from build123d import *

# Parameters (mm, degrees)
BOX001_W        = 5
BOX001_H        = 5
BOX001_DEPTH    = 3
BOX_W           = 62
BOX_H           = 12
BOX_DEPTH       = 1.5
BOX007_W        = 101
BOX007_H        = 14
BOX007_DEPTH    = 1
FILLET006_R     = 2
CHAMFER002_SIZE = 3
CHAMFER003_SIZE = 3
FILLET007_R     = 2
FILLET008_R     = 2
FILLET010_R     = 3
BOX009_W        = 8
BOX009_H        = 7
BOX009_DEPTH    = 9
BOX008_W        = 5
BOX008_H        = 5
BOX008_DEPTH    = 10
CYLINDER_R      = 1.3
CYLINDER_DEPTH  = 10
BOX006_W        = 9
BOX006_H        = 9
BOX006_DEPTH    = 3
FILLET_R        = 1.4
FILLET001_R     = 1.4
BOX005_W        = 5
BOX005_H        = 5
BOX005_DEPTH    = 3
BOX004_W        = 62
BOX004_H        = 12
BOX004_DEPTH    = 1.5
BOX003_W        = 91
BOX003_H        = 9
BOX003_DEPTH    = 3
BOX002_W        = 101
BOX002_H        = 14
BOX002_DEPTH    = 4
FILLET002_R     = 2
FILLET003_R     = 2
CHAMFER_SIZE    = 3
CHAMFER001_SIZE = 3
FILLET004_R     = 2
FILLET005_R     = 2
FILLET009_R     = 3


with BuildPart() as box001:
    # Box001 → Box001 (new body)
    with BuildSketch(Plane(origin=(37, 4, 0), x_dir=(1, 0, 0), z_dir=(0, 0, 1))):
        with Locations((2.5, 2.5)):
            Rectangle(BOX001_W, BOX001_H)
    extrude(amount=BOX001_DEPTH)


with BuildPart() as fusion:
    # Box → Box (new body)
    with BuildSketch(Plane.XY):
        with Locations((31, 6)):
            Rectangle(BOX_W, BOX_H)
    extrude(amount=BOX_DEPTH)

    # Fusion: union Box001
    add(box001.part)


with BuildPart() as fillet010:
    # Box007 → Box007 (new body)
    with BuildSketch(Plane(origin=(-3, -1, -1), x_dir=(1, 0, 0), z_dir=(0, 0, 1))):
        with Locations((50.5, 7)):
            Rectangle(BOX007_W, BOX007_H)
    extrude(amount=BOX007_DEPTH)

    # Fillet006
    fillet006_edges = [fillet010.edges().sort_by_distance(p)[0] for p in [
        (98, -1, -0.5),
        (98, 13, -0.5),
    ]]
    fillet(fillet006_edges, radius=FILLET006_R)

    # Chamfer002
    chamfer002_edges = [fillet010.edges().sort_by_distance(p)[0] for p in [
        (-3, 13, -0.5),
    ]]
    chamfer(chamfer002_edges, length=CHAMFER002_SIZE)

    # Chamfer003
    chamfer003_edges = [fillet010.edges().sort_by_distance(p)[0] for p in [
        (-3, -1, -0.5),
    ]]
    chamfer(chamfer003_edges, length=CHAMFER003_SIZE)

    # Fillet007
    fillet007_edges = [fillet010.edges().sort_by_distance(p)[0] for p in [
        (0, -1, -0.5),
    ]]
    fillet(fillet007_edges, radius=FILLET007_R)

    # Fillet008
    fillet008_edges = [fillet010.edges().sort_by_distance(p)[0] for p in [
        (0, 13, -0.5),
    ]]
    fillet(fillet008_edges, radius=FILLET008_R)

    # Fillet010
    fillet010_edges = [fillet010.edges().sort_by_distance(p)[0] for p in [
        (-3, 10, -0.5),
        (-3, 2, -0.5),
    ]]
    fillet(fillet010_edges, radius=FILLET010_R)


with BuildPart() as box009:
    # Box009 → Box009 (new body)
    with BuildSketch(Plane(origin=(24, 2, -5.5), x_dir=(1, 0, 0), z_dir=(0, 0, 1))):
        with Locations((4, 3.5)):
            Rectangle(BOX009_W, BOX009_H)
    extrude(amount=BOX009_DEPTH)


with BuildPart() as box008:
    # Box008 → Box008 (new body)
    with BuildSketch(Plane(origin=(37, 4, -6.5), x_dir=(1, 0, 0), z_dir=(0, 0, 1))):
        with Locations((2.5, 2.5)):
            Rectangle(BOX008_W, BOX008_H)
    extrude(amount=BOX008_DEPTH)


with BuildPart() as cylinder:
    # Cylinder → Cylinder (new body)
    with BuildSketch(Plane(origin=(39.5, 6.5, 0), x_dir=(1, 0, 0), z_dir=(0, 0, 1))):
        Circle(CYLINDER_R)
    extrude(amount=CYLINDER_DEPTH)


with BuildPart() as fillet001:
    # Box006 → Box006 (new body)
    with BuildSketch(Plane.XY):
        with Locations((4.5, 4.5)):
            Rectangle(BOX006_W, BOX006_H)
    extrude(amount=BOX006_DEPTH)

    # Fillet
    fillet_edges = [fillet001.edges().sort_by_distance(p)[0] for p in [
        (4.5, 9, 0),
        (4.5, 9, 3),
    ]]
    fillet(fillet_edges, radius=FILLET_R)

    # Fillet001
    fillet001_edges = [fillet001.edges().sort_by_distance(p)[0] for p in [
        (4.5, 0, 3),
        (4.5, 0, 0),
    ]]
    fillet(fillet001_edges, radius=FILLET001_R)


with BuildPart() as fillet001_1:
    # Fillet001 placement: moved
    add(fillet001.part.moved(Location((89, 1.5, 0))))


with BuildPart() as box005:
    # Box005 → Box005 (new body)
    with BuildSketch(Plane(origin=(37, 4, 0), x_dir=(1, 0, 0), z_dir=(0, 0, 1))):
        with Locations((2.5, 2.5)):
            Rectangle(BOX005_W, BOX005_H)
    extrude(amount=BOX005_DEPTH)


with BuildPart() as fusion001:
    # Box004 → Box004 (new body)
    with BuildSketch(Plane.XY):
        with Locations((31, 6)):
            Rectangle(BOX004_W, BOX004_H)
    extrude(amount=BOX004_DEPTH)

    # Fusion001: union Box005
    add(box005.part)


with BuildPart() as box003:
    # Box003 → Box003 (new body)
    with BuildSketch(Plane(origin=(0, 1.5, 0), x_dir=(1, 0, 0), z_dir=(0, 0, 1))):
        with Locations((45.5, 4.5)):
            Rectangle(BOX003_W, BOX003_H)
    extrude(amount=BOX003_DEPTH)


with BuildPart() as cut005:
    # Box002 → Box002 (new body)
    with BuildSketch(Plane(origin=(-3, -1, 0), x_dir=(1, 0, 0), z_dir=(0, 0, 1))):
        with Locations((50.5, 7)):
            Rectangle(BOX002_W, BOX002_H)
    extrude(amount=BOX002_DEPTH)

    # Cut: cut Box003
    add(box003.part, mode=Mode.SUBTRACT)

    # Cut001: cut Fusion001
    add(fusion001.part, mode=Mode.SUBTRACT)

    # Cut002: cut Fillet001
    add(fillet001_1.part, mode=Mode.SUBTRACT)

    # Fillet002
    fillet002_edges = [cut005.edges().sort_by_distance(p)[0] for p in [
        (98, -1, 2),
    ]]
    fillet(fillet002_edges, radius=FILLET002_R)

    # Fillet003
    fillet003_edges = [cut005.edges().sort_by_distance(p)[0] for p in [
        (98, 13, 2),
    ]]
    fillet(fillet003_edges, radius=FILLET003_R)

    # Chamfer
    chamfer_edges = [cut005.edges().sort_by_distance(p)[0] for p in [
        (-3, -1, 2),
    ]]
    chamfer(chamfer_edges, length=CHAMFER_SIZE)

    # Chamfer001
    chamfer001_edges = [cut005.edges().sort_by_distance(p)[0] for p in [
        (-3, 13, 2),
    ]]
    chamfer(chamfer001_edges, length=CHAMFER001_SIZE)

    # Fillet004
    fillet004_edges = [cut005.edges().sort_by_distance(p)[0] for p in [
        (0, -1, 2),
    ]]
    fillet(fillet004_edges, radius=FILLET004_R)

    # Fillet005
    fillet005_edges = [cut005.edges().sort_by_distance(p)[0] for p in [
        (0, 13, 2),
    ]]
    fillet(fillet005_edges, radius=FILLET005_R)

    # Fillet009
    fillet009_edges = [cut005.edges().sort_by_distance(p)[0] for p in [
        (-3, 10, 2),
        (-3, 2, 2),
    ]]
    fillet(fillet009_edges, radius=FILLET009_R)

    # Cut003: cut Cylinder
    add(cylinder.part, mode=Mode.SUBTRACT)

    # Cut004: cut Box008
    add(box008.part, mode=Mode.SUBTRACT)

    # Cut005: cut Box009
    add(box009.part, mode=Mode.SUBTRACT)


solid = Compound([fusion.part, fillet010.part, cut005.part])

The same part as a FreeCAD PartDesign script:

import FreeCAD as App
import Part
import Sketcher

V = App.Vector
Q = App.Units.Quantity


def edges_at(feature, points):
    """Names of the edges that pass closest to the given points."""
    edges = feature.Shape.Edges
    near = lambda p: min(range(len(edges)), key=lambda i: edges[i].distToShape(Part.Vertex(*p))[0])
    return sorted({f"Edge{near(p) + 1}" for p in points})


def add_polygon(sketch, points):
    """Adds a closed chain of lines whose ends are joined by coincident constraints."""
    first, n = sketch.GeometryCount, len(points)
    for a, b in zip(points, points[1:] + points[:1]):
        sketch.addGeometry(Part.LineSegment(App.Vector(*a, 0), App.Vector(*b, 0)), False)
    for i in range(n):
        sketch.addConstraint(Sketcher.Constraint("Coincident", first + i, 2, first + (i + 1) % n, 1))

doc = App.newDocument("Part")
body = doc.addObject("PartDesign::Body", "Body")

# Sketch on XY plane
sketch1 = body.newObject("Sketcher::SketchObject", "Sketch")
sketch1.AttachmentSupport = (doc.getObject("XY_Plane"), [""])
sketch1.MapMode = "FlatFace"
add_polygon(sketch1, [(37, 9), (37, 4), (42, 4), (42, 9)])  # lines 0-3
sketch1.addConstraint([
    Sketcher.Constraint("Vertical", 0),
    Sketcher.Constraint("Horizontal", 1),
    Sketcher.Constraint("Vertical", 2),
    Sketcher.Constraint("Horizontal", 3),
    Sketcher.Constraint("Equal", 3, 0),
    Sketcher.Constraint("DistanceX", 1, 1, 1, 2, Q("5 mm")),
    Sketcher.Constraint("DistanceX", -1, 1, 0, 2, Q("37 mm")),
    Sketcher.Constraint("DistanceY", -1, 1, 0, 2, Q("4 mm")),
])
pad1 = body.newObject("PartDesign::Pad", "Pad")
pad1.Profile = sketch1
pad1.Length = 3
body2 = doc.addObject("PartDesign::Body", "Body001")

# Sketch on XY plane
sketch2 = body2.newObject("Sketcher::SketchObject", "Sketch001")
sketch2.AttachmentSupport = (doc.getObject("XY_Plane001"), [""])
sketch2.MapMode = "FlatFace"
add_polygon(sketch2, [(0, 12), (0, 0), (62, 0), (62, 12)])  # lines 0-3
sketch2.addConstraint([
    Sketcher.Constraint("Vertical", 0),
    Sketcher.Constraint("Horizontal", 1),
    Sketcher.Constraint("Vertical", 2),
    Sketcher.Constraint("Horizontal", 3),
    Sketcher.Constraint("Coincident", 0, 2, -1, 1),
    Sketcher.Constraint("DistanceX", 1, 1, 1, 2, Q("62 mm")),
    Sketcher.Constraint("DistanceY", 0, 2, 0, 1, Q("12 mm")),
])
pad2 = body2.newObject("PartDesign::Pad", "Pad001")
pad2.Profile = sketch2
pad2.Length = 1.5
doc.recompute()

boolean = body2.newObject("PartDesign::Boolean", "Boolean")
boolean.Type = "Fuse"
boolean.addObjects([body])
body3 = doc.addObject("PartDesign::Body", "Body002")

# Sketch on XY plane
sketch3 = body3.newObject("Sketcher::SketchObject", "Sketch002")
sketch3.AttachmentSupport = (doc.getObject("XY_Plane002"), [""])
sketch3.MapMode = "FlatFace"
sketch3.AttachmentOffset = App.Placement(V(0, 0, -1), App.Rotation())
add_polygon(sketch3, [(-3, 13), (-3, -1), (98, -1), (98, 13)])  # lines 0-3
sketch3.addConstraint([
    Sketcher.Constraint("Vertical", 0),
    Sketcher.Constraint("Horizontal", 1),
    Sketcher.Constraint("Vertical", 2),
    Sketcher.Constraint("Horizontal", 3),
    Sketcher.Constraint("DistanceX", 1, 1, 1, 2, Q("101 mm")),
    Sketcher.Constraint("DistanceY", 0, 2, 0, 1, Q("14 mm")),
    Sketcher.Constraint("DistanceX", 0, 2, -1, 1, Q("3 mm")),
    Sketcher.Constraint("DistanceY", 0, 2, -1, 1, Q("1 mm")),
])
pad3 = body3.newObject("PartDesign::Pad", "Pad002")
pad3.Profile = sketch3
pad3.Length = 1
doc.recompute()

fillet = body3.newObject("PartDesign::Fillet", "Fillet")
fillet.Base = (pad3, edges_at(pad3, [(98, -1, -0.5), (98, 13, -0.5)]))
fillet.Radius = 2
doc.recompute()

chamfer = body3.newObject("PartDesign::Chamfer", "Chamfer")
chamfer.Base = (fillet, edges_at(fillet, [(-3, 13, -0.5)]))
chamfer.Size = 3
doc.recompute()

chamfer2 = body3.newObject("PartDesign::Chamfer", "Chamfer001")
chamfer2.Base = (chamfer, edges_at(chamfer, [(-3, -1, -0.5)]))
chamfer2.Size = 3
doc.recompute()

fillet2 = body3.newObject("PartDesign::Fillet", "Fillet001")
fillet2.Base = (chamfer2, edges_at(chamfer2, [(0, -1, -0.5)]))
fillet2.Radius = 2
doc.recompute()

fillet3 = body3.newObject("PartDesign::Fillet", "Fillet002")
fillet3.Base = (fillet2, edges_at(fillet2, [(0, 13, -0.5)]))
fillet3.Radius = 2
doc.recompute()

fillet4 = body3.newObject("PartDesign::Fillet", "Fillet003")
fillet4.Base = (fillet3, edges_at(fillet3, [(-3, 10, -0.5), (-3, 2, -0.5)]))
fillet4.Radius = 3
body4 = doc.addObject("PartDesign::Body", "Body003")

# Sketch on XY plane
sketch4 = body4.newObject("Sketcher::SketchObject", "Sketch003")
sketch4.AttachmentSupport = (doc.getObject("XY_Plane003"), [""])
sketch4.MapMode = "FlatFace"
sketch4.AttachmentOffset = App.Placement(V(0, 0, -5.5), App.Rotation())
add_polygon(sketch4, [(24, 9), (24, 2), (32, 2), (32, 9)])  # lines 0-3
sketch4.addConstraint([
    Sketcher.Constraint("Vertical", 0),
    Sketcher.Constraint("Horizontal", 1),
    Sketcher.Constraint("Vertical", 2),
    Sketcher.Constraint("Horizontal", 3),
    Sketcher.Constraint("DistanceX", 1, 1, 1, 2, Q("8 mm")),
    Sketcher.Constraint("DistanceY", 0, 2, 0, 1, Q("7 mm")),
    Sketcher.Constraint("DistanceX", -1, 1, 0, 2, Q("24 mm")),
    Sketcher.Constraint("DistanceY", -1, 1, 0, 2, Q("2 mm")),
])
pad4 = body4.newObject("PartDesign::Pad", "Pad003")
pad4.Profile = sketch4
pad4.Length = 9
body5 = doc.addObject("PartDesign::Body", "Body004")

# Sketch on XY plane
sketch5 = body5.newObject("Sketcher::SketchObject", "Sketch004")
sketch5.AttachmentSupport = (doc.getObject("XY_Plane004"), [""])
sketch5.MapMode = "FlatFace"
sketch5.AttachmentOffset = App.Placement(V(0, 0, -6.5), App.Rotation())
add_polygon(sketch5, [(37, 9), (37, 4), (42, 4), (42, 9)])  # lines 0-3
sketch5.addConstraint([
    Sketcher.Constraint("Vertical", 0),
    Sketcher.Constraint("Horizontal", 1),
    Sketcher.Constraint("Vertical", 2),
    Sketcher.Constraint("Horizontal", 3),
    Sketcher.Constraint("Equal", 3, 0),
    Sketcher.Constraint("DistanceX", 1, 1, 1, 2, Q("5 mm")),
    Sketcher.Constraint("DistanceX", -1, 1, 0, 2, Q("37 mm")),
    Sketcher.Constraint("DistanceY", -1, 1, 0, 2, Q("4 mm")),
])
pad5 = body5.newObject("PartDesign::Pad", "Pad004")
pad5.Profile = sketch5
pad5.Length = 10
body6 = doc.addObject("PartDesign::Body", "Body005")

# Sketch on XY plane
sketch6 = body6.newObject("Sketcher::SketchObject", "Sketch005")
sketch6.AttachmentSupport = (doc.getObject("XY_Plane005"), [""])
sketch6.MapMode = "FlatFace"
sketch6.addGeometry(Part.Circle(V(39.5, 6.5, 0), V(0, 0, 1), 1.3), False)
sketch6.addConstraint([
    Sketcher.Constraint("Diameter", 0, Q("2.6 mm")),
    Sketcher.Constraint("DistanceX", -1, 1, 0, 3, Q("39.5 mm")),
    Sketcher.Constraint("DistanceY", -1, 1, 0, 3, Q("6.5 mm")),
])
pad6 = body6.newObject("PartDesign::Pad", "Pad005")
pad6.Profile = sketch6
pad6.Length = 10
body7 = doc.addObject("PartDesign::Body", "Body006")

# Sketch on XY plane
sketch7 = body7.newObject("Sketcher::SketchObject", "Sketch006")
sketch7.AttachmentSupport = (doc.getObject("XY_Plane006"), [""])
sketch7.MapMode = "FlatFace"
add_polygon(sketch7, [(0, 9), (0, 0), (9, 0), (9, 9)])  # lines 0-3
sketch7.addConstraint([
    Sketcher.Constraint("Vertical", 0),
    Sketcher.Constraint("Horizontal", 1),
    Sketcher.Constraint("Vertical", 2),
    Sketcher.Constraint("Horizontal", 3),
    Sketcher.Constraint("Coincident", 0, 2, -1, 1),
    Sketcher.Constraint("Equal", 3, 0),
    Sketcher.Constraint("DistanceX", 1, 1, 1, 2, Q("9 mm")),
])
pad7 = body7.newObject("PartDesign::Pad", "Pad006")
pad7.Profile = sketch7
pad7.Length = 3
doc.recompute()

fillet5 = body7.newObject("PartDesign::Fillet", "Fillet004")
fillet5.Base = (pad7, edges_at(pad7, [(4.5, 9, 0), (4.5, 9, 3)]))
fillet5.Radius = 1.4
doc.recompute()

fillet6 = body7.newObject("PartDesign::Fillet", "Fillet005")
fillet6.Base = (fillet5, edges_at(fillet5, [(4.5, 0, 3), (4.5, 0, 0)]))
fillet6.Radius = 1.4
body8 = doc.addObject("PartDesign::Body", "Body007")
doc.recompute()

body7.Placement = App.Placement(V(89, 1.5, 0), App.Rotation(V(0, 0, 1), 0))
boolean2 = body8.newObject("PartDesign::Boolean", "Boolean001")
boolean2.Type = "Fuse"
boolean2.addObjects([body7])
body9 = doc.addObject("PartDesign::Body", "Body008")

# Sketch on XY plane
sketch8 = body9.newObject("Sketcher::SketchObject", "Sketch007")
sketch8.AttachmentSupport = (doc.getObject("XY_Plane008"), [""])
sketch8.MapMode = "FlatFace"
add_polygon(sketch8, [(37, 9), (37, 4), (42, 4), (42, 9)])  # lines 0-3
sketch8.addConstraint([
    Sketcher.Constraint("Vertical", 0),
    Sketcher.Constraint("Horizontal", 1),
    Sketcher.Constraint("Vertical", 2),
    Sketcher.Constraint("Horizontal", 3),
    Sketcher.Constraint("Equal", 3, 0),
    Sketcher.Constraint("DistanceX", 1, 1, 1, 2, Q("5 mm")),
    Sketcher.Constraint("DistanceX", -1, 1, 0, 2, Q("37 mm")),
    Sketcher.Constraint("DistanceY", -1, 1, 0, 2, Q("4 mm")),
])
pad8 = body9.newObject("PartDesign::Pad", "Pad007")
pad8.Profile = sketch8
pad8.Length = 3
body10 = doc.addObject("PartDesign::Body", "Body009")

# Sketch on XY plane
sketch9 = body10.newObject("Sketcher::SketchObject", "Sketch008")
sketch9.AttachmentSupport = (doc.getObject("XY_Plane009"), [""])
sketch9.MapMode = "FlatFace"
add_polygon(sketch9, [(0, 12), (0, 0), (62, 0), (62, 12)])  # lines 0-3
sketch9.addConstraint([
    Sketcher.Constraint("Vertical", 0),
    Sketcher.Constraint("Horizontal", 1),
    Sketcher.Constraint("Vertical", 2),
    Sketcher.Constraint("Horizontal", 3),
    Sketcher.Constraint("Coincident", 0, 2, -1, 1),
    Sketcher.Constraint("DistanceX", 1, 1, 1, 2, Q("62 mm")),
    Sketcher.Constraint("DistanceY", 0, 2, 0, 1, Q("12 mm")),
])
pad9 = body10.newObject("PartDesign::Pad", "Pad008")
pad9.Profile = sketch9
pad9.Length = 1.5
doc.recompute()

boolean3 = body10.newObject("PartDesign::Boolean", "Boolean002")
boolean3.Type = "Fuse"
boolean3.addObjects([body9])
body11 = doc.addObject("PartDesign::Body", "Body010")

# Sketch on XY plane
sketch10 = body11.newObject("Sketcher::SketchObject", "Sketch009")
sketch10.AttachmentSupport = (doc.getObject("XY_Plane010"), [""])
sketch10.MapMode = "FlatFace"
add_polygon(sketch10, [(0, 10), (0, 2), (91, 2), (91, 10)])  # lines 0-3
sketch10.addConstraint([
    Sketcher.Constraint("Vertical", 0),
    Sketcher.Constraint("Horizontal", 1),
    Sketcher.Constraint("Vertical", 2),
    Sketcher.Constraint("Horizontal", 3),
    Sketcher.Constraint("PointOnObject", 0, 2, -2),
    Sketcher.Constraint("DistanceX", 1, 1, 1, 2, Q("91 mm")),
    Sketcher.Constraint("DistanceY", 0, 2, 0, 1, Q("9 mm")),
    Sketcher.Constraint("DistanceY", -1, 1, 0, 2, Q("1.5 mm")),
])
pad10 = body11.newObject("PartDesign::Pad", "Pad009")
pad10.Profile = sketch10
pad10.Length = 3
body12 = doc.addObject("PartDesign::Body", "Body011")

# Sketch on XY plane
sketch11 = body12.newObject("Sketcher::SketchObject", "Sketch010")
sketch11.AttachmentSupport = (doc.getObject("XY_Plane011"), [""])
sketch11.MapMode = "FlatFace"
add_polygon(sketch11, [(-3, 13), (-3, -1), (98, -1), (98, 13)])  # lines 0-3
sketch11.addConstraint([
    Sketcher.Constraint("Vertical", 0),
    Sketcher.Constraint("Horizontal", 1),
    Sketcher.Constraint("Vertical", 2),
    Sketcher.Constraint("Horizontal", 3),
    Sketcher.Constraint("DistanceX", 1, 1, 1, 2, Q("101 mm")),
    Sketcher.Constraint("DistanceY", 0, 2, 0, 1, Q("14 mm")),
    Sketcher.Constraint("DistanceX", 0, 2, -1, 1, Q("3 mm")),
    Sketcher.Constraint("DistanceY", 0, 2, -1, 1, Q("1 mm")),
])
pad11 = body12.newObject("PartDesign::Pad", "Pad010")
pad11.Profile = sketch11
pad11.Length = 4
doc.recompute()

boolean4 = body12.newObject("PartDesign::Boolean", "Boolean003")
boolean4.Type = "Cut"
boolean4.addObjects([body11])
doc.recompute()

boolean5 = body12.newObject("PartDesign::Boolean", "Boolean004")
boolean5.Type = "Cut"
boolean5.addObjects([body10])
doc.recompute()

boolean6 = body12.newObject("PartDesign::Boolean", "Boolean005")
boolean6.Type = "Cut"
boolean6.addObjects([body8])
doc.recompute()

fillet7 = body12.newObject("PartDesign::Fillet", "Fillet006")
fillet7.Base = (boolean6, edges_at(boolean6, [(98, -1, 2)]))
fillet7.Radius = 2
doc.recompute()

fillet8 = body12.newObject("PartDesign::Fillet", "Fillet007")
fillet8.Base = (fillet7, edges_at(fillet7, [(98, 13, 2)]))
fillet8.Radius = 2
doc.recompute()

chamfer3 = body12.newObject("PartDesign::Chamfer", "Chamfer002")
chamfer3.Base = (fillet8, edges_at(fillet8, [(-3, -1, 2)]))
chamfer3.Size = 3
doc.recompute()

chamfer4 = body12.newObject("PartDesign::Chamfer", "Chamfer003")
chamfer4.Base = (chamfer3, edges_at(chamfer3, [(-3, 13, 2)]))
chamfer4.Size = 3
doc.recompute()

fillet9 = body12.newObject("PartDesign::Fillet", "Fillet008")
fillet9.Base = (chamfer4, edges_at(chamfer4, [(0, -1, 2)]))
fillet9.Radius = 2
doc.recompute()

fillet10 = body12.newObject("PartDesign::Fillet", "Fillet009")
fillet10.Base = (fillet9, edges_at(fillet9, [(0, 13, 2)]))
fillet10.Radius = 2
doc.recompute()

fillet11 = body12.newObject("PartDesign::Fillet", "Fillet010")
fillet11.Base = (fillet10, edges_at(fillet10, [(-3, 10, 2), (-3, 2, 2)]))
fillet11.Radius = 3
doc.recompute()

boolean7 = body12.newObject("PartDesign::Boolean", "Boolean006")
boolean7.Type = "Cut"
boolean7.addObjects([body6])
doc.recompute()

boolean8 = body12.newObject("PartDesign::Boolean", "Boolean007")
boolean8.Type = "Cut"
boolean8.addObjects([body5])
doc.recompute()

boolean9 = body12.newObject("PartDesign::Boolean", "Boolean008")
boolean9.Type = "Cut"
boolean9.addObjects([body4])

doc.recompute()
